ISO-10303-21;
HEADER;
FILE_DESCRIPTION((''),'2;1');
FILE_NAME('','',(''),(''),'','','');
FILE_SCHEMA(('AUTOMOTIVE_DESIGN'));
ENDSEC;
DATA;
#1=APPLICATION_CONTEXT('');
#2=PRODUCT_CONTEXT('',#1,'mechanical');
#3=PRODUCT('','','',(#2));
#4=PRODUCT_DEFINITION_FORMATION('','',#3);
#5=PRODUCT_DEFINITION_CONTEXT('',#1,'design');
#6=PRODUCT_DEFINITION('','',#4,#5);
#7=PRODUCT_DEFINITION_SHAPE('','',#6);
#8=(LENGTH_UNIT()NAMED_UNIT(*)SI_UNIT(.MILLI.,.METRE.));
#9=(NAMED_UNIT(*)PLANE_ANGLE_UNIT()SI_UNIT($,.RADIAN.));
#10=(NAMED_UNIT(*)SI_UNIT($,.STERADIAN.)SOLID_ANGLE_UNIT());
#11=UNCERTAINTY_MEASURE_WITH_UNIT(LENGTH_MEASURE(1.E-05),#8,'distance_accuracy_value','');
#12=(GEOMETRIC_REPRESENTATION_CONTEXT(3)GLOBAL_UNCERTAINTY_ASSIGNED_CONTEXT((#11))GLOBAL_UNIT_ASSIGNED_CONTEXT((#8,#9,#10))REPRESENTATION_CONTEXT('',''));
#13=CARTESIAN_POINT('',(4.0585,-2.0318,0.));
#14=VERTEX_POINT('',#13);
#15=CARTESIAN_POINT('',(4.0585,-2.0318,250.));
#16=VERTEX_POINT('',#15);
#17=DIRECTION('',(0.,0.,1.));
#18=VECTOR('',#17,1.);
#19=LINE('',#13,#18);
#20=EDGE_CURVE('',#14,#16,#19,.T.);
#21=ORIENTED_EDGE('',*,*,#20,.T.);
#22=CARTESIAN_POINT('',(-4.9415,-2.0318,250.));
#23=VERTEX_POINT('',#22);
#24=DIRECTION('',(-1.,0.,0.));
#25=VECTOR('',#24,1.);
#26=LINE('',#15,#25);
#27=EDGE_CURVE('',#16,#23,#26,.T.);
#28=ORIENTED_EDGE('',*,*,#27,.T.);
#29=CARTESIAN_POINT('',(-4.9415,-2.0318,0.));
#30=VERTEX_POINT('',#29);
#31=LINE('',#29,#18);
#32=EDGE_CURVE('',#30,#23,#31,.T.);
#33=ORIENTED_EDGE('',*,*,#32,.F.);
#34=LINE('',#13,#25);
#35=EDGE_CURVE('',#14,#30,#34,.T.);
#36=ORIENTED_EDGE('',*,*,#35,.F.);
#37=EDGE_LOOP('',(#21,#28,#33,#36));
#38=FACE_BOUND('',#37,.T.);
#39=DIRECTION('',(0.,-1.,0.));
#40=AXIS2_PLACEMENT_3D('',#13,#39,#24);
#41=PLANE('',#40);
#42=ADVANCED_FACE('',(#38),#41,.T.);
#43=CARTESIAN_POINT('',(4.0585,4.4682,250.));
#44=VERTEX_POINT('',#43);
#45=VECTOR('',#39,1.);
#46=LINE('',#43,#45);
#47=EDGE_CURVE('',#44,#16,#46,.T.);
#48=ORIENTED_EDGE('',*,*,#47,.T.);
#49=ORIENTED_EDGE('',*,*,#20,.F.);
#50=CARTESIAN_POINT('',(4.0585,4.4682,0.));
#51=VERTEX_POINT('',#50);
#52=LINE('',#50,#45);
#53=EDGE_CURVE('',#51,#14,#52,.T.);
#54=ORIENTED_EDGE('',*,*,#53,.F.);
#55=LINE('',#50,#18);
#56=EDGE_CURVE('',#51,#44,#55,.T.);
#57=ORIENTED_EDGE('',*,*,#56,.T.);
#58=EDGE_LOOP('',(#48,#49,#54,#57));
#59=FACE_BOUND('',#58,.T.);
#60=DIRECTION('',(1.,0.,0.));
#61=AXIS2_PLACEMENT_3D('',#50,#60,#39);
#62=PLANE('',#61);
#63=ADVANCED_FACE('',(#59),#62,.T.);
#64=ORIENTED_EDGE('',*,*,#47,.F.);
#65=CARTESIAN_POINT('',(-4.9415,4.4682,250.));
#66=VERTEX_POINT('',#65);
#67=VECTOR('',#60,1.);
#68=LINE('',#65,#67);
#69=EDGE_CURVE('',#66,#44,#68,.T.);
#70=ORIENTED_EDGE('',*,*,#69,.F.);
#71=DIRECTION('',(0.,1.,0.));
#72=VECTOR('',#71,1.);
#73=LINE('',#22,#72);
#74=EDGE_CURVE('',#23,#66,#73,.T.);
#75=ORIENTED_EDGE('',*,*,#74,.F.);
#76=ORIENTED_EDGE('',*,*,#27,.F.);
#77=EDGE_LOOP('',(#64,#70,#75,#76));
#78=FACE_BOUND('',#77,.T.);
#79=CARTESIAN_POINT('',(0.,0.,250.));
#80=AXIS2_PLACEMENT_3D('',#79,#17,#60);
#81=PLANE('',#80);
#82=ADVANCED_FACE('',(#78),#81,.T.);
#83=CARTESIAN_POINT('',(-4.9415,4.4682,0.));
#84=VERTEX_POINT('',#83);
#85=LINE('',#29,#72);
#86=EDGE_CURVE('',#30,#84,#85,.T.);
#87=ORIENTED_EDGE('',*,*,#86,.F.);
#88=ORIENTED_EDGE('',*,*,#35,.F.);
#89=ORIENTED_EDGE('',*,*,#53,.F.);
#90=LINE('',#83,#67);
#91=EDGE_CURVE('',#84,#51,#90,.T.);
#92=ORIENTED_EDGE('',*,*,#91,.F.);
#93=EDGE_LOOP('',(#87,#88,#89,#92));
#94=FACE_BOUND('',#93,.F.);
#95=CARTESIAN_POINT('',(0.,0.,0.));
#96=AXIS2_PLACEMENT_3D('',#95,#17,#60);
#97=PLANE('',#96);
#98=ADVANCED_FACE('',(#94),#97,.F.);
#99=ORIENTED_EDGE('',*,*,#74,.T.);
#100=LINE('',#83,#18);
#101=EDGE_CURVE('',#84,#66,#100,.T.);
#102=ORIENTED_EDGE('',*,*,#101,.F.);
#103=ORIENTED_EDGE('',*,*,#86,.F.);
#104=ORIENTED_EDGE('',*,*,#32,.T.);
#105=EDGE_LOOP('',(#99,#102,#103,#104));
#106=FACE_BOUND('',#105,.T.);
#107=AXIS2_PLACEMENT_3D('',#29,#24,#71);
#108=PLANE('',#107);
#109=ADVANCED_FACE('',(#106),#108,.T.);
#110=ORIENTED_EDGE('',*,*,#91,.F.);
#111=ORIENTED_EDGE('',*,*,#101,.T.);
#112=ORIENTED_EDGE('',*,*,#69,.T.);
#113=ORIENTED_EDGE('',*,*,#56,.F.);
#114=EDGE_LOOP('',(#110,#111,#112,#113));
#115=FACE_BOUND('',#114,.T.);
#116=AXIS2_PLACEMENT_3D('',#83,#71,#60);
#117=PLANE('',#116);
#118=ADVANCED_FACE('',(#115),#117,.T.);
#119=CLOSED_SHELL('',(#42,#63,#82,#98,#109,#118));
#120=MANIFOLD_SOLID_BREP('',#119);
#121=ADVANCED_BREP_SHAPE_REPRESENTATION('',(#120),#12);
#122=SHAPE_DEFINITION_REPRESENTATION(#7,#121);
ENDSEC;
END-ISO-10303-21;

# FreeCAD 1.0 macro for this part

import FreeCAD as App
import Part
import Sketcher


def add_polygon(sketch, points):
    """Adds a closed chain of lines whose ends are joined by coincident constraints."""
    first, n = sketch.GeometryCount, len(points)
    for a, b in zip(points, points[1:] + points[:1]):
        sketch.addGeometry(Part.LineSegment(App.Vector(*a, 0), App.Vector(*b, 0)), False)
    for i in range(n):
        sketch.addConstraint(Sketcher.Constraint("Coincident", first + i, 2, first + (i + 1) % n, 1))

doc = App.newDocument("Part")
params = doc.addObject("Spreadsheet::Sheet", "Params")
for row, (alias, value) in enumerate([
    ("sketch1_width", "9 mm"),
    ("sketch1_height", "6.5 mm"),
    ("pad1_length", "250 mm"),
], start=1):
    params.set(f"A{row}", alias)
    params.set(f"B{row}", "=" + value)
    params.setAlias(f"B{row}", alias)

body = doc.addObject("PartDesign::Body", "Body")

# Sketch on XY plane
sketch1 = doc.addObject("Sketcher::SketchObject", "Sketch")
body.addObject(sketch1)
sketch1.AttachmentSupport = (doc.XY_Plane, [""])
sketch1.MapMode = "FlatFace"
add_polygon(sketch1, [(4, 4), (-5, 4), (-5, -2), (4, -2)])  # lines 0-3
sketch1.addConstraint(Sketcher.Constraint("Horizontal", 0))
sketch1.addConstraint(Sketcher.Constraint("Vertical", 1))
sketch1.addConstraint(Sketcher.Constraint("Horizontal", 2))
sketch1.addConstraint(Sketcher.Constraint("Vertical", 3))
sketch1.addConstraint(Sketcher.Constraint("DistanceX", 0, 2, 0, 1, 9.0))
sketch1.addConstraint(Sketcher.Constraint("DistanceY", 1, 2, 1, 1, 6.5))
sketch1.addConstraint(Sketcher.Constraint("DistanceX", 0, 2, -1, 1, 4.9415))
sketch1.addConstraint(Sketcher.Constraint("DistanceY", -1, 1, 0, 2, 4.4682))
sketch1.setExpression("Constraints[8]", "Params.sketch1_width")
sketch1.setExpression("Constraints[9]", "Params.sketch1_height")
pad1 = doc.addObject("PartDesign::Pad", "Pad")
body.addObject(pad1)
pad1.Profile = sketch1
pad1.setExpression("Length", "Params.pad1_length")

doc.recompute()
